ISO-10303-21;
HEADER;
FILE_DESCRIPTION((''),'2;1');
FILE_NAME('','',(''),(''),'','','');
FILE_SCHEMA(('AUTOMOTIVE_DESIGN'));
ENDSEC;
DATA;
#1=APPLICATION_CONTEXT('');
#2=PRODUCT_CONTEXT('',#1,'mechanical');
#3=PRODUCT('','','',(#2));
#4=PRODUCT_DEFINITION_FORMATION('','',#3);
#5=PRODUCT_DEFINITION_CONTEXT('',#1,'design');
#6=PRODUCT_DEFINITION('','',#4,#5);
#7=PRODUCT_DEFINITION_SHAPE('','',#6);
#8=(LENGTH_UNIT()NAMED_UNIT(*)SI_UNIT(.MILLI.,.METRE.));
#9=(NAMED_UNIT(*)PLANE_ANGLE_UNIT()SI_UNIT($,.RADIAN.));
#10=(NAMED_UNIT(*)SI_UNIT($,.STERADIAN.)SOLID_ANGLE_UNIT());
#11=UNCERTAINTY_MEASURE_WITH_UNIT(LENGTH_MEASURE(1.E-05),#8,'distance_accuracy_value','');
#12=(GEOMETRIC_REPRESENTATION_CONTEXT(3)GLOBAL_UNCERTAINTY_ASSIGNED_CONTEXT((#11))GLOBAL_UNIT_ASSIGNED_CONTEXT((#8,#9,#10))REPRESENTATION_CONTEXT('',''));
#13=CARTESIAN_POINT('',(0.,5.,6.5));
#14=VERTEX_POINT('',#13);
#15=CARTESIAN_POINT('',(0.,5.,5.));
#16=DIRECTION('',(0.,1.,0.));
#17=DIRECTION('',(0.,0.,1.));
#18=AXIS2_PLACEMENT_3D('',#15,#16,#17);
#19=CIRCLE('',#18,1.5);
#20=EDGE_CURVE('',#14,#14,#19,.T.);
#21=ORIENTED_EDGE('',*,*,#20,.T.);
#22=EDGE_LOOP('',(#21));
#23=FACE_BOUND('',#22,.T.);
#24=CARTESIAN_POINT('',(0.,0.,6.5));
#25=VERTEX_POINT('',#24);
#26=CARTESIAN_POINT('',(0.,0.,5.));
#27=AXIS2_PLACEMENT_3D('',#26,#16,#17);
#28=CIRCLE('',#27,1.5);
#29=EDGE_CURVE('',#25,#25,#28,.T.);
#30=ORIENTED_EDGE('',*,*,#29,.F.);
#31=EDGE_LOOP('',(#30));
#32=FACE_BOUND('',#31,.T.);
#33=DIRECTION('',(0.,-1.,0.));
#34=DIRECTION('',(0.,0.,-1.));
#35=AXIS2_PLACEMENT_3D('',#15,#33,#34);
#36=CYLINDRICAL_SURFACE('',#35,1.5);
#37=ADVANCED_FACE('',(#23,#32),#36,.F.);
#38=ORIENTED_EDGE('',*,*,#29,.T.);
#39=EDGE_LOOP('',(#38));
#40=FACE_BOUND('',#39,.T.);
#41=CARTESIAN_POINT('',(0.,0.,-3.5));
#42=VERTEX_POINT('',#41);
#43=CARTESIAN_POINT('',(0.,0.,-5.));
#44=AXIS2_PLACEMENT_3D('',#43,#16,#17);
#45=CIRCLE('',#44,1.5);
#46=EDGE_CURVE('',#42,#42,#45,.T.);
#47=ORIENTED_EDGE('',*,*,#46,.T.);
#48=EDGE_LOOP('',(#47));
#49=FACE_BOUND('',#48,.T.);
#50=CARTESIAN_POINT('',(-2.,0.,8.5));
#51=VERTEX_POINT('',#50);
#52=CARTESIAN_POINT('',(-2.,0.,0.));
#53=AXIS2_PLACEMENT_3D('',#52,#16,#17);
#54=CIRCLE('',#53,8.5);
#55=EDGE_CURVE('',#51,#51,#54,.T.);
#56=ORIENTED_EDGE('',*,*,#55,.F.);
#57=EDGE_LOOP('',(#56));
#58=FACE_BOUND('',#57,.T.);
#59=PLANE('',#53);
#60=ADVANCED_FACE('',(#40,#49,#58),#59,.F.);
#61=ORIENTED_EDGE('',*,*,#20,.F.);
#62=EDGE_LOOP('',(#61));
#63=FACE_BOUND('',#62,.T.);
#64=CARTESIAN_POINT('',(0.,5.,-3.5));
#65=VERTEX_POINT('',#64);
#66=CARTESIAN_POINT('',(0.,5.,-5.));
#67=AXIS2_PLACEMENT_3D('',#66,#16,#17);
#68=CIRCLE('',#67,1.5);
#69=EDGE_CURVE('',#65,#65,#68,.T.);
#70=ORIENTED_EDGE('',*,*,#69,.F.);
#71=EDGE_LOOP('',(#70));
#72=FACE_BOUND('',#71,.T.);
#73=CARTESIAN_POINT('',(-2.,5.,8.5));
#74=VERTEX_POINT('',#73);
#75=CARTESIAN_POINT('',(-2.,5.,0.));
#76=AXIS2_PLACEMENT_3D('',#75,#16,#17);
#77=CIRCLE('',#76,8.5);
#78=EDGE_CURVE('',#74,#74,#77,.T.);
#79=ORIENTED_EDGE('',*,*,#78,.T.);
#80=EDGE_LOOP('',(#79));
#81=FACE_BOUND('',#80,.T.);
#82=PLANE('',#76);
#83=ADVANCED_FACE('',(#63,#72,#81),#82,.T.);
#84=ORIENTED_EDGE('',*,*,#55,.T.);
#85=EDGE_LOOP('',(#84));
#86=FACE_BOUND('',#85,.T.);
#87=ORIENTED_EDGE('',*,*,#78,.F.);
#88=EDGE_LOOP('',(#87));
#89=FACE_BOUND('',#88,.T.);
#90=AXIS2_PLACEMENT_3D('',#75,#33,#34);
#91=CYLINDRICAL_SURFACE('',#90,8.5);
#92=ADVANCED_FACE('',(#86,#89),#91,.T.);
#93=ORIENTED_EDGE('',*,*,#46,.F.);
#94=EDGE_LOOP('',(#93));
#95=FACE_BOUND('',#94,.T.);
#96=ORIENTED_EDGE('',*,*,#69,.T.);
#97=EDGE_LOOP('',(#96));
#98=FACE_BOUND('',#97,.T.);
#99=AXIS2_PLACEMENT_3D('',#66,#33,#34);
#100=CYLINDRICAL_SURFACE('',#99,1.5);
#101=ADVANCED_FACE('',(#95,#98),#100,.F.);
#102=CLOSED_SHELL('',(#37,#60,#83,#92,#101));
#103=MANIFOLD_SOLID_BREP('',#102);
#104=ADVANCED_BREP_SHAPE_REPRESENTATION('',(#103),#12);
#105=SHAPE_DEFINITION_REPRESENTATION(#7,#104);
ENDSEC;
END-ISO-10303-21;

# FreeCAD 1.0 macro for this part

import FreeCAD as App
import Part
import Sketcher

doc = App.newDocument("Part")
params = doc.addObject("Spreadsheet::Sheet", "Params")
for row, (alias, value) in enumerate([
    ("sketch1_diameter", "17 mm"),
    ("sketch1_diameter2", "3 mm"),
    ("pad1_length", "5 mm"),
], start=1):
    params.set(f"A{row}", alias)
    params.set(f"B{row}", "=" + value)
    params.setAlias(f"B{row}", alias)

body = doc.addObject("PartDesign::Body", "Body")

# Sketch on XZ plane
sketch1 = body.newObject("Sketcher::SketchObject", "Sketch")
sketch1.AttachmentSupport = (doc.getObject("XZ_Plane"), [""])
sketch1.MapMode = "FlatFace"
sketch1.addGeometry([
    Part.Circle(App.Vector(-2, 0, 0), App.Vector(0, 0, 1), 8.5),
    Part.Circle(App.Vector(0, -5, 0), App.Vector(0, 0, 1), 1.5),
    Part.Circle(App.Vector(0, 5, 0), App.Vector(0, 0, 1), 1.5),
], False)
sketch1.addConstraint([
    Sketcher.Constraint("Equal", 1, 2),
    Sketcher.Constraint("Symmetric", 1, 3, 2, 3, -1, 1),
    Sketcher.Constraint("PointOnObject", 0, 3, -1),
    Sketcher.Constraint("PointOnObject", 1, 3, -2),
    Sketcher.Constraint("Diameter", 0, 17.0),
    Sketcher.Constraint("Diameter", 1, 3.0),
    Sketcher.Constraint("DistanceX", 0, 3, -1, 1, 2.0),
    Sketcher.Constraint("DistanceY", 1, 3, -1, 1, 5.0),
])
sketch1.setExpression("Constraints[4]", "Params.sketch1_diameter")
sketch1.setExpression("Constraints[5]", "Params.sketch1_diameter2")
pad1 = body.newObject("PartDesign::Pad", "Pad")
pad1.Profile = sketch1
pad1.setExpression("Length", "Params.pad1_length")
pad1.Reversed = True

doc.recompute()
